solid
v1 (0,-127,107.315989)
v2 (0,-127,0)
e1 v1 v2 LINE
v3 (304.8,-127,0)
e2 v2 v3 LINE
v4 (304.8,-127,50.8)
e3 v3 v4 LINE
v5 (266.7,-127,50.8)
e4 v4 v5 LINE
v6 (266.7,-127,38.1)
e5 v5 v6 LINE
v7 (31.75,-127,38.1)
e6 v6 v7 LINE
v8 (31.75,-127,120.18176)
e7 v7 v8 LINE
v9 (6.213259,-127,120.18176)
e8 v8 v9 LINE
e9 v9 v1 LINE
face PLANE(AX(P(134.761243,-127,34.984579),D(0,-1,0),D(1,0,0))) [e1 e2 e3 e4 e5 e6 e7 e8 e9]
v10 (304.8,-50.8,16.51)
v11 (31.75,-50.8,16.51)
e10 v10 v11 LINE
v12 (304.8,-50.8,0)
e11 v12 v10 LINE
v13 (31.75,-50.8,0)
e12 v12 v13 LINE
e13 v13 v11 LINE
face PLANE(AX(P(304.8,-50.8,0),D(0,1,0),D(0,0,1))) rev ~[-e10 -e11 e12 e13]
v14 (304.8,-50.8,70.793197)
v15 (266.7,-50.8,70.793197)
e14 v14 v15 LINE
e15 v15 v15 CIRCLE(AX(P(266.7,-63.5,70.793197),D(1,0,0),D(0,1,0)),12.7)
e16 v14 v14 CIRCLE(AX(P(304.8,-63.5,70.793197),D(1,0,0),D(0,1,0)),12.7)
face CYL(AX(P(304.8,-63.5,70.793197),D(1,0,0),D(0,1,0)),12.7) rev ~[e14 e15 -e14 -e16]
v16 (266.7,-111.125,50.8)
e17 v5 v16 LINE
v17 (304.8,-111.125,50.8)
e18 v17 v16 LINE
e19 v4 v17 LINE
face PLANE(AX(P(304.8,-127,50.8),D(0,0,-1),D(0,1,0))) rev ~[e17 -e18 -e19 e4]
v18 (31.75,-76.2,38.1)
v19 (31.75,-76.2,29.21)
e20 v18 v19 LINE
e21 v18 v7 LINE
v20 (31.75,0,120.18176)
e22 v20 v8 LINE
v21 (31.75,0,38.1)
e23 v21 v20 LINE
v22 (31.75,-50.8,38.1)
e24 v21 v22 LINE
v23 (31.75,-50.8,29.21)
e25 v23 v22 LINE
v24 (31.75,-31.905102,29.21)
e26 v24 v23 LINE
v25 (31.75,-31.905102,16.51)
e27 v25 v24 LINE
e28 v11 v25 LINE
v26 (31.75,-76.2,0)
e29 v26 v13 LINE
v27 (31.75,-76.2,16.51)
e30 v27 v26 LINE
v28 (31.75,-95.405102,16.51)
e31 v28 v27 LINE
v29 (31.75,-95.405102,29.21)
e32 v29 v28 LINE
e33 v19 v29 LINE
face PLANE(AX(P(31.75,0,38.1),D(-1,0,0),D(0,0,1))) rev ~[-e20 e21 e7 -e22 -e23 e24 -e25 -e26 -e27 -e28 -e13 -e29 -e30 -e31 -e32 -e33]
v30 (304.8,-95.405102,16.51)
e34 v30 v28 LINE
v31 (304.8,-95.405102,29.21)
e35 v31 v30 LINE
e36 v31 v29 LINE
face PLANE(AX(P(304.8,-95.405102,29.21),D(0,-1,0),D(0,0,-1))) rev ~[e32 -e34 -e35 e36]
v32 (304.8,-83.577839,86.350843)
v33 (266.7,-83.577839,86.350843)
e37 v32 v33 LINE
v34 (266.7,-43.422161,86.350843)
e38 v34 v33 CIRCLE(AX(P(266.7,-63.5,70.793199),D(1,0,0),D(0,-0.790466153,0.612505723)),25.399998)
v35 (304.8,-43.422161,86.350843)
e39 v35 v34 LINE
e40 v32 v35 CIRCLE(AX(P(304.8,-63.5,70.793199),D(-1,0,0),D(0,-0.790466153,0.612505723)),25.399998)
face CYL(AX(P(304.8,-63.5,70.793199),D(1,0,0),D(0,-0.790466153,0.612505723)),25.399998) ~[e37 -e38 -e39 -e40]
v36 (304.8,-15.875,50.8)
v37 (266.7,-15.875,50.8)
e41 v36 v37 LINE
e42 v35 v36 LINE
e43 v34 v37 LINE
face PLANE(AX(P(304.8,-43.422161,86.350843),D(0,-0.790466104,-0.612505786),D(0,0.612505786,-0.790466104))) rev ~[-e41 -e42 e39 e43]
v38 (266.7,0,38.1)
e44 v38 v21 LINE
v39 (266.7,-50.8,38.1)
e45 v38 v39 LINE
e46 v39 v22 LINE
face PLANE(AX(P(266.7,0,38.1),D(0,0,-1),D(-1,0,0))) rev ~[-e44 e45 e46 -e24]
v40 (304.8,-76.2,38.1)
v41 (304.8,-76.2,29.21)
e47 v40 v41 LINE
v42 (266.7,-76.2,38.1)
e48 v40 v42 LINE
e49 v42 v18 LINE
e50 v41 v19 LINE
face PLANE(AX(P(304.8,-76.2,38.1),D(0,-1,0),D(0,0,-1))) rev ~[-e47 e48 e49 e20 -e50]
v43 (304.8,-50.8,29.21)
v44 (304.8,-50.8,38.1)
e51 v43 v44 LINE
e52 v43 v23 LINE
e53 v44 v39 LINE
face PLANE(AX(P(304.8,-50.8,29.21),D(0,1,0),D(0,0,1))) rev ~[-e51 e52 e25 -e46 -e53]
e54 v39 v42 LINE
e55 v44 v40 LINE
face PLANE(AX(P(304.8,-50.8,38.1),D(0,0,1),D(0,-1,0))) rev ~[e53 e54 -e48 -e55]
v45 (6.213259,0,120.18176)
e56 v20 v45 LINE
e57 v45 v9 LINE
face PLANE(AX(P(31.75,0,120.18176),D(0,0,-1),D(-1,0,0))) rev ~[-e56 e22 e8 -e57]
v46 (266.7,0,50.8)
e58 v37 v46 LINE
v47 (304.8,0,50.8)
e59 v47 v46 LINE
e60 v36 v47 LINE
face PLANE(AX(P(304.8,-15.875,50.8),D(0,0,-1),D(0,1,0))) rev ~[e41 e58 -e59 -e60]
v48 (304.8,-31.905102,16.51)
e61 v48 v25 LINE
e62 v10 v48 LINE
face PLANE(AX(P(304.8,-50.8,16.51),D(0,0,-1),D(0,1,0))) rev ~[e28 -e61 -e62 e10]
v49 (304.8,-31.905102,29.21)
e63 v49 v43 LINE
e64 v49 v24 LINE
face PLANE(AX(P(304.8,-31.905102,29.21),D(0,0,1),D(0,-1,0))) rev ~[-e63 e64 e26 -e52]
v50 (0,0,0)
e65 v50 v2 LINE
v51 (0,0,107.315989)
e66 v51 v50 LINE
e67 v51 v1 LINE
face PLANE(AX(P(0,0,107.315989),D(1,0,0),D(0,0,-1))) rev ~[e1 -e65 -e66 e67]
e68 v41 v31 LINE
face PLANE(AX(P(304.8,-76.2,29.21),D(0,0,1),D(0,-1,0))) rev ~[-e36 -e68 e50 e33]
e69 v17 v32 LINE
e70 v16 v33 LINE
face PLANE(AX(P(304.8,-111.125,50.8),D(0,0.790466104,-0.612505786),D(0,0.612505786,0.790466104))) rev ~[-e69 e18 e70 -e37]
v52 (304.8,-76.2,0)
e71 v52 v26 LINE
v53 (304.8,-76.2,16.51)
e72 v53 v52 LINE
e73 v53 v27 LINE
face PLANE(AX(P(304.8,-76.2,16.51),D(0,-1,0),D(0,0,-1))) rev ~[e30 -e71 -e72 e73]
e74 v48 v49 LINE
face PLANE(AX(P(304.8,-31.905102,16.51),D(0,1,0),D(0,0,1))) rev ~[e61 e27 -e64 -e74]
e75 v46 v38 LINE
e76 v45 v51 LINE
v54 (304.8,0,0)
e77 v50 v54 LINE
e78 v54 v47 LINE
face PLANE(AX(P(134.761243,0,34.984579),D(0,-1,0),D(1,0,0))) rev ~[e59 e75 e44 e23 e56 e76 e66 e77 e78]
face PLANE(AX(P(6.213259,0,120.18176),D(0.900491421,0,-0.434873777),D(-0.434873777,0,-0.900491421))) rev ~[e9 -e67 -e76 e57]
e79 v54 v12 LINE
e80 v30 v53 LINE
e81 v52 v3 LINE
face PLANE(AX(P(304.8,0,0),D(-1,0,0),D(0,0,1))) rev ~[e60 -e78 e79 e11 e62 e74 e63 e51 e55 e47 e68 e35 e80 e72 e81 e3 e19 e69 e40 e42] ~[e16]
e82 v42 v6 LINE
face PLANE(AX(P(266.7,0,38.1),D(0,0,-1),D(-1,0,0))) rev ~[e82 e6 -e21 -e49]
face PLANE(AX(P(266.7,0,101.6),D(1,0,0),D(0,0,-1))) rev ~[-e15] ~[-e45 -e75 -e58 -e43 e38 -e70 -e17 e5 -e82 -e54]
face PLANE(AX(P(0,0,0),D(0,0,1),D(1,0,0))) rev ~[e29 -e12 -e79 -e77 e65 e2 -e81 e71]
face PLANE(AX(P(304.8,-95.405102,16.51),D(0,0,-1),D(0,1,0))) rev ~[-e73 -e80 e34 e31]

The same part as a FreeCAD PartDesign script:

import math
import FreeCAD as App
import Part
import Sketcher
Q = App.Units.Quantity


def add_polygon(sketch, points):
    """Adds a closed chain of lines whose ends are joined by coincident constraints."""
    first, n = sketch.GeometryCount, len(points)
    for a, b in zip(points, points[1:] + points[:1]):
        sketch.addGeometry(Part.LineSegment(App.Vector(*a, 0), App.Vector(*b, 0)), False)
    for i in range(n):
        sketch.addConstraint(Sketcher.Constraint("Coincident", first + i, 2, first + (i + 1) % n, 1))

doc = App.newDocument("Part")
body = doc.addObject("PartDesign::Body", "Body")

# Sketch on XZ plane
sketch1 = body.newObject("Sketcher::SketchObject", "Sketch")
sketch1.AttachmentSupport = (doc.getObject("XZ_Plane"), [""])
sketch1.MapMode = "FlatFace"
add_polygon(sketch1, [(6, 120), (0, 107), (0, 0), (305, 0), (305, 102), (267, 102), (267, 38), (32, 38), (32, 120)])  # lines 0-8
sketch1.addConstraint(Sketcher.Constraint("Vertical", 1))
sketch1.addConstraint(Sketcher.Constraint("Horizontal", 2))
sketch1.addConstraint(Sketcher.Constraint("Vertical", 3))
sketch1.addConstraint(Sketcher.Constraint("Horizontal", 4))
sketch1.addConstraint(Sketcher.Constraint("Vertical", 5))
sketch1.addConstraint(Sketcher.Constraint("Horizontal", 6))
sketch1.addConstraint(Sketcher.Constraint("Vertical", 7))
sketch1.addConstraint(Sketcher.Constraint("Horizontal", 8))
sketch1.addConstraint(Sketcher.Constraint("Coincident", 1, 2, -1, 1))
sketch1.addConstraint(Sketcher.Constraint("DistanceX", 2, 1, 2, 2, Q("12 in")))
sketch1.addConstraint(Sketcher.Constraint("DistanceY", 3, 1, 3, 2, Q("4 in")))
sketch1.addConstraint(Sketcher.Constraint("DistanceX", 4, 2, 4, 1, Q("1.5 in")))
sketch1.addConstraint(Sketcher.Constraint("DistanceY", 5, 2, 5, 1, Q("2.5 in")))
sketch1.addConstraint(Sketcher.Constraint("DistanceX", 6, 2, 6, 1, Q("9.25 in")))
sketch1.addConstraint(Sketcher.Constraint("Distance", 0, Q("0.5625 in")))
sketch1.addConstraint(Sketcher.Constraint("DistanceX", 8, 2, 8, 1, Q("25.536741 mm")))
sketch1.addConstraint(Sketcher.Constraint("DistanceY", 1, 2, 1, 1, Q("107.315989 mm")))
pad1 = body.newObject("PartDesign::Pad", "Pad")
pad1.Profile = sketch1
pad1.Length = Q("5 in")

# Sketch on YZ plane
sketch2 = body.newObject("Sketcher::SketchObject", "Sketch001")
sketch2.AttachmentSupport = (doc.getObject("YZ_Plane"), [""])
sketch2.MapMode = "FlatFace"
sketch2.AttachmentOffset = App.Placement(App.Vector(0, 0, 12 * 25.4), App.Rotation())
add_polygon(sketch2, [(-76, 17), (-76, 0), (-51, 0), (-51, 17), (-32, 17), (-32, 29), (-51, 29), (-51, 38), (-76, 38), (-76, 29), (-95, 29), (-95, 17)])  # lines 0-11
sketch2.addConstraint(Sketcher.Constraint("Vertical", 0))
sketch2.addConstraint(Sketcher.Constraint("Horizontal", 1))
sketch2.addConstraint(Sketcher.Constraint("Vertical", 2))
sketch2.addConstraint(Sketcher.Constraint("Horizontal", 3))
sketch2.addConstraint(Sketcher.Constraint("Vertical", 4))
sketch2.addConstraint(Sketcher.Constraint("Horizontal", 5))
sketch2.addConstraint(Sketcher.Constraint("Vertical", 6))
sketch2.addConstraint(Sketcher.Constraint("Horizontal", 7))
sketch2.addConstraint(Sketcher.Constraint("Vertical", 8))
sketch2.addConstraint(Sketcher.Constraint("Horizontal", 9))
sketch2.addConstraint(Sketcher.Constraint("Vertical", 10))
sketch2.addConstraint(Sketcher.Constraint("Horizontal", 11))
sketch2.addConstraint(Sketcher.Constraint("PointOnObject", 0, 2, -1))
sketch2.addConstraint(Sketcher.Constraint("Horizontal", 5, 2, 8, 2))
sketch2.addConstraint(Sketcher.Constraint("Horizontal", 3, 2, 10, 2))
sketch2.addConstraint(Sketcher.Constraint("Vertical", 2, 2, 5, 2))
sketch2.addConstraint(Sketcher.Constraint("Vertical", 0, 2, 7, 2))
sketch2.addConstraint(Sketcher.Constraint("DistanceX", 1, 1, 1, 2, Q("1 in")))
sketch2.addConstraint(Sketcher.Constraint("DistanceY", 4, 1, 4, 2, Q("0.5 in")))
sketch2.addConstraint(Sketcher.Constraint("DistanceX", 0, 2, -1, 1, Q("3 in")))
sketch2.addConstraint(Sketcher.Constraint("DistanceY", 0, 2, 0, 1, Q("0.65 in")))
sketch2.addConstraint(Sketcher.Constraint("DistanceY", 6, 1, 6, 2, Q("0.35 in")))
sketch2.addConstraint(Sketcher.Constraint("DistanceX", 9, 2, 9, 1, Q("19.205102 mm")))
sketch2.addConstraint(Sketcher.Constraint("DistanceX", 3, 2, -1, 1, Q("31.905102 mm")))
pocket1 = body.newObject("PartDesign::Pocket", "Pocket")
pocket1.Profile = sketch2
pocket1.Length = Q("10.75 in")

# Sketch on YZ plane
sketch3 = body.newObject("Sketcher::SketchObject", "Sketch002")
sketch3.AttachmentSupport = (doc.getObject("YZ_Plane"), [""])
sketch3.MapMode = "FlatFace"
sketch3.AttachmentOffset = App.Placement(App.Vector(0, 0, 12 * 25.4), App.Rotation())
sketch3.addGeometry(Part.Circle(App.Vector(-64, 71, 0), App.Vector(0, 0, 1), 13), False)
sketch3.addGeometry(Part.LineSegment(App.Vector(-127, 102, 0), App.Vector(-127, 51, 0)), False)
sketch3.addGeometry(Part.LineSegment(App.Vector(-127, 51, 0), App.Vector(-111, 51, 0)), False)
sketch3.addGeometry(Part.LineSegment(App.Vector(-111, 51, 0), App.Vector(-84, 86, 0)), False)
sketch3.addGeometry(Part.ArcOfCircle(Part.Circle(App.Vector(-64, 71, 0), App.Vector(0, 0, 1), 25), math.radians(38), math.radians(142)), False)
sketch3.addGeometry(Part.LineSegment(App.Vector(-43, 86, 0), App.Vector(-16, 51, 0)), False)
sketch3.addGeometry(Part.LineSegment(App.Vector(-16, 51, 0), App.Vector(0, 51, 0)), False)
sketch3.addGeometry(Part.LineSegment(App.Vector(0, 51, 0), App.Vector(0, 102, 0)), False)
sketch3.addGeometry(Part.LineSegment(App.Vector(0, 102, 0), App.Vector(-127, 102, 0)), False)
sketch3.addConstraint(Sketcher.Constraint("Coincident", 1, 2, 2, 1))
sketch3.addConstraint(Sketcher.Constraint("Coincident", 2, 2, 3, 1))
sketch3.addConstraint(Sketcher.Constraint("Tangent", 3, 2, 4, 2))
sketch3.addConstraint(Sketcher.Constraint("Tangent", 4, 1, 5, 1))
sketch3.addConstraint(Sketcher.Constraint("Coincident", 5, 2, 6, 1))
sketch3.addConstraint(Sketcher.Constraint("Coincident", 6, 2, 7, 1))
sketch3.addConstraint(Sketcher.Constraint("Coincident", 7, 2, 8, 1))
sketch3.addConstraint(Sketcher.Constraint("Coincident", 8, 2, 1, 1))
sketch3.addConstraint(Sketcher.Constraint("Vertical", 1))
sketch3.addConstraint(Sketcher.Constraint("Horizontal", 2))
sketch3.addConstraint(Sketcher.Constraint("Horizontal", 6))
sketch3.addConstraint(Sketcher.Constraint("Vertical", 7))
sketch3.addConstraint(Sketcher.Constraint("Horizontal", 8))
sketch3.addConstraint(Sketcher.Constraint("Coincident", 4, 3, 0, 3))
sketch3.addConstraint(Sketcher.Constraint("PointOnObject", 6, 2, -2))
sketch3.addConstraint(Sketcher.Constraint("Horizontal", 3, 2, 4, 1))
sketch3.addConstraint(Sketcher.Constraint("Horizontal", 2, 2, 5, 2))
sketch3.addConstraint(Sketcher.Constraint("Equal", 2, 6))
sketch3.addConstraint(Sketcher.Constraint("Diameter", 0, Q("1 in")))
sketch3.addConstraint(Sketcher.Constraint("Radius", 4, Q("0.9999999 in")))
sketch3.addConstraint(Sketcher.Constraint("DistanceX", 8, 2, 8, 1, Q("5 in")))
sketch3.addConstraint(Sketcher.Constraint("DistanceY", 1, 2, 1, 1, Q("2 in")))
sketch3.addConstraint(Sketcher.Constraint("DistanceY", -1, 1, 1, 2, Q("2 in")))
sketch3.addConstraint(Sketcher.Constraint("DistanceX", 2, 1, 2, 2, Q("0.625 in")))
sketch3.addConstraint(Sketcher.Constraint("DistanceY", -1, 1, 4, 3, Q("70.793199 mm")))
pocket2 = body.newObject("PartDesign::Pocket", "Pocket001")
pocket2.Profile = sketch3
pocket2.Length = Q("10 in")

doc.recompute()
